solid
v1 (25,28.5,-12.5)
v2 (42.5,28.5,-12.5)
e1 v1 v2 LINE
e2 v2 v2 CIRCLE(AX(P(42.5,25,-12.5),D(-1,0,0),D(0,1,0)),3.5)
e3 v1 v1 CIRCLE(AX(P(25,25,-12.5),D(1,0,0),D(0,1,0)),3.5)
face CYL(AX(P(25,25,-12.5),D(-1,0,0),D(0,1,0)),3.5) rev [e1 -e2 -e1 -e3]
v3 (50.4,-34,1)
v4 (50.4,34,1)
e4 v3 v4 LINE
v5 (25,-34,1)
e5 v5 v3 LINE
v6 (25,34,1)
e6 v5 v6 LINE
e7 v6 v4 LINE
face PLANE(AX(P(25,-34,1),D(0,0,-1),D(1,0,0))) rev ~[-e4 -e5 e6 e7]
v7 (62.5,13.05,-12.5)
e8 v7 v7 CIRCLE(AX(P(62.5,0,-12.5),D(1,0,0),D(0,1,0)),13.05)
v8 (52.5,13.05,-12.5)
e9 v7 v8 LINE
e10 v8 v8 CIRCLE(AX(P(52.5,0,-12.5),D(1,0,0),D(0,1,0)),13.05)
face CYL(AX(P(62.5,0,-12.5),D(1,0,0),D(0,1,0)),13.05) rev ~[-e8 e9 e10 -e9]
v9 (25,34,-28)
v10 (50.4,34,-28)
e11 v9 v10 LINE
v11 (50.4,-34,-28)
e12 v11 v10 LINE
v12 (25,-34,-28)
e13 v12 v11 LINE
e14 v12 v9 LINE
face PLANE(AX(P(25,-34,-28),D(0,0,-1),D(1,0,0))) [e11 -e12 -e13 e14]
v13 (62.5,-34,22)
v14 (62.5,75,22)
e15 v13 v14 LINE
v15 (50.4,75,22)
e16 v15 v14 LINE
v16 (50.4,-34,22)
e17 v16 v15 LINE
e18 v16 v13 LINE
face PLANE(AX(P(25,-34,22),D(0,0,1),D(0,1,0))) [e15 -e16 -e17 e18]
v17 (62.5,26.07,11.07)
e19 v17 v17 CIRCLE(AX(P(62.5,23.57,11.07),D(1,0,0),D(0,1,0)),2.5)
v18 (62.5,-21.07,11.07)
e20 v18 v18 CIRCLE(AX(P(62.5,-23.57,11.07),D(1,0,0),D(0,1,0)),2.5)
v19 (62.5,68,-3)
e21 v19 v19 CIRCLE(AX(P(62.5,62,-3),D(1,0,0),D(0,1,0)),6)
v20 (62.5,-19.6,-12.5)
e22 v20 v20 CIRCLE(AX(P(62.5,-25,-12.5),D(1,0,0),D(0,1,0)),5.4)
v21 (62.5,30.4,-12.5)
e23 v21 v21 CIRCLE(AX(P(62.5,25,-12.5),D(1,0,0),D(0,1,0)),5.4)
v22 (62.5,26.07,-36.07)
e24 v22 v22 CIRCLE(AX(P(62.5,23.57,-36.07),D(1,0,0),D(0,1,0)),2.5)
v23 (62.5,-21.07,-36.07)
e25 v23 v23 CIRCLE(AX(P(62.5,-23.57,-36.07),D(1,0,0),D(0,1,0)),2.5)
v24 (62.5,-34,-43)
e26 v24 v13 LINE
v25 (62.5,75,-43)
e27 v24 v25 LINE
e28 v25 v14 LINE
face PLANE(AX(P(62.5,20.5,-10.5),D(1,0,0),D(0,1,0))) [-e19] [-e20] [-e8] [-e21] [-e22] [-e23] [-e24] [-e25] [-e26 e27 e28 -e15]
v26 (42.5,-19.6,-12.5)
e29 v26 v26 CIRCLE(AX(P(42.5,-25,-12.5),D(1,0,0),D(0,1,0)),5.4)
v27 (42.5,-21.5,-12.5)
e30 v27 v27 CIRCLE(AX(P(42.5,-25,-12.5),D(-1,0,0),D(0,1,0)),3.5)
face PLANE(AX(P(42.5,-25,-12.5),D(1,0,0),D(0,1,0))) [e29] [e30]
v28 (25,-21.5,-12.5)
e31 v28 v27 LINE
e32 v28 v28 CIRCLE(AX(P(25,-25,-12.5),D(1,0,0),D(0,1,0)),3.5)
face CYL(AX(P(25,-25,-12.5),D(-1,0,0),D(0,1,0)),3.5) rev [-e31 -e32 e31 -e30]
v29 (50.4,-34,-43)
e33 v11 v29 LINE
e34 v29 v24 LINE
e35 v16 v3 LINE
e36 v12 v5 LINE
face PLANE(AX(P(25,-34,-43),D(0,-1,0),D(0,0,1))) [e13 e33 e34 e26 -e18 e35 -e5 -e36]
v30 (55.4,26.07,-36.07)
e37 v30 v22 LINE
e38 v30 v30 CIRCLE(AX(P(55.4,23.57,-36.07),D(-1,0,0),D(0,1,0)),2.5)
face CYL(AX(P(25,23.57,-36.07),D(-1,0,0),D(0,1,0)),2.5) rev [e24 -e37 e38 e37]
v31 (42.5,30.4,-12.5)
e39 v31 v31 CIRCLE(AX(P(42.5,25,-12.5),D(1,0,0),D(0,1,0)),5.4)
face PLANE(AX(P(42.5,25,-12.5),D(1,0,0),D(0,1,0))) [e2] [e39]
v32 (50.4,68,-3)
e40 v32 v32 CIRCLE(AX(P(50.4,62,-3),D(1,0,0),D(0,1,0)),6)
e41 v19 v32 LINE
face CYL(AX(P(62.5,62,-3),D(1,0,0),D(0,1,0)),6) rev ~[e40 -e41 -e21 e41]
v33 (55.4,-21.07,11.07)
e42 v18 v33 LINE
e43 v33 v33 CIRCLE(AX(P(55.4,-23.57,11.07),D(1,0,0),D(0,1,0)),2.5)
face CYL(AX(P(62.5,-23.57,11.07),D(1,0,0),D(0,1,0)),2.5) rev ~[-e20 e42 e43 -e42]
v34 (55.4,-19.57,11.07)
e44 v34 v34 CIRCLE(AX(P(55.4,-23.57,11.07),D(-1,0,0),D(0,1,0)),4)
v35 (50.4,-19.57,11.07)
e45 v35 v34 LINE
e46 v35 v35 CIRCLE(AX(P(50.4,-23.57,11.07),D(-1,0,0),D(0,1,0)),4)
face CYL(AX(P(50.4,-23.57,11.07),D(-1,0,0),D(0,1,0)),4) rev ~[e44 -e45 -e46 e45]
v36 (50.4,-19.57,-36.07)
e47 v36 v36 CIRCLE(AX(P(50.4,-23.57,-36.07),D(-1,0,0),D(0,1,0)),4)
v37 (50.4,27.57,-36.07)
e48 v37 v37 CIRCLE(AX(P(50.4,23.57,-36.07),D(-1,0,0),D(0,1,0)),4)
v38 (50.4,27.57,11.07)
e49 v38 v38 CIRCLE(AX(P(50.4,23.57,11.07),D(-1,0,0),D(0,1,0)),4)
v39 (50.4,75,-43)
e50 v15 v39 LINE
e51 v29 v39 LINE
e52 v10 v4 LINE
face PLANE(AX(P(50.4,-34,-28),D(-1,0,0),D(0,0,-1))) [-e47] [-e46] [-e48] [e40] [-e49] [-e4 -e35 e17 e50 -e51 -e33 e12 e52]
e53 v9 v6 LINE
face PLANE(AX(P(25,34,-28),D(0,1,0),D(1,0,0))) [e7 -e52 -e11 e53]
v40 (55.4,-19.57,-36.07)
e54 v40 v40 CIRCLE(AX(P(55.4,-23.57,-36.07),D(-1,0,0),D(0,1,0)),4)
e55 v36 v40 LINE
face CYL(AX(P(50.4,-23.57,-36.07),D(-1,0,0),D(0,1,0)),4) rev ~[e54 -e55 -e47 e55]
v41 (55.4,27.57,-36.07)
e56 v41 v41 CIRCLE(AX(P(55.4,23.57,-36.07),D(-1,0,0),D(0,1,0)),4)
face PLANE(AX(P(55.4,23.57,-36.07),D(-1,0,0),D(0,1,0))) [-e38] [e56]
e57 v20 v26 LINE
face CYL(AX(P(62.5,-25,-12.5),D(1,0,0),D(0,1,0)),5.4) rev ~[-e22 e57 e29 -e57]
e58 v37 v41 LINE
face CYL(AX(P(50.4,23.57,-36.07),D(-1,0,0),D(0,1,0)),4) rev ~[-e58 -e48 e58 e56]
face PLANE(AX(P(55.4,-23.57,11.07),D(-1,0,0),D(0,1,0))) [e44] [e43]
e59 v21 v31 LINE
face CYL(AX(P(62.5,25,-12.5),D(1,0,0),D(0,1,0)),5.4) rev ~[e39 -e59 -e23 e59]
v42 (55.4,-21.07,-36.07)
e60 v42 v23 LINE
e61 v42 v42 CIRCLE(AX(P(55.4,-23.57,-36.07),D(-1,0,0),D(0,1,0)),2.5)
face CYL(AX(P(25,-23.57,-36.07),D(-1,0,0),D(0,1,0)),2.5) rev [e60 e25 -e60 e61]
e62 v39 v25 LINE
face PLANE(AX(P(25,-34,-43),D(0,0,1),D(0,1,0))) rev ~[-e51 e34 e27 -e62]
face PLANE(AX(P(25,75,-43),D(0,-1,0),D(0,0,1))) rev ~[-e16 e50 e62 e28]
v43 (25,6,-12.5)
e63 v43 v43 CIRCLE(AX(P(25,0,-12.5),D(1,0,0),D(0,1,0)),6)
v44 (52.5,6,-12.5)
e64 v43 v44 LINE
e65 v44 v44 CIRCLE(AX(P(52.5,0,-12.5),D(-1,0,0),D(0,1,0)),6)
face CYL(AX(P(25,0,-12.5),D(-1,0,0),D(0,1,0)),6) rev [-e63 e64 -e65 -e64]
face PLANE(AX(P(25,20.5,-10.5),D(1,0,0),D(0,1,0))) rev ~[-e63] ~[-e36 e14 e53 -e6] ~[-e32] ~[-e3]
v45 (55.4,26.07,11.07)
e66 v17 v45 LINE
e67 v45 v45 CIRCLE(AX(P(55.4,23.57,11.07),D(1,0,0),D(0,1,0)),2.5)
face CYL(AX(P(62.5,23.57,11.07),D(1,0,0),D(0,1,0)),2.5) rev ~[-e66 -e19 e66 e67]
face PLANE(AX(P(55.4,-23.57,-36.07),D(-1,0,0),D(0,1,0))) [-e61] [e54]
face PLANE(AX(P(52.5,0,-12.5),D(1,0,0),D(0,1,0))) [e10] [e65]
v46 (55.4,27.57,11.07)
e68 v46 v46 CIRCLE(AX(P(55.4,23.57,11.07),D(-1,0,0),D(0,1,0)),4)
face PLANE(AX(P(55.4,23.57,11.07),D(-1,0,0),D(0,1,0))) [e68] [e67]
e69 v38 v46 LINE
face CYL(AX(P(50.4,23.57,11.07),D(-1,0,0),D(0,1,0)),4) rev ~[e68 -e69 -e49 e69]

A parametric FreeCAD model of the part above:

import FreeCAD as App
import Part
import Sketcher


def add_polygon(sketch, points):
    """Adds a closed chain of lines whose ends are joined by coincident constraints."""
    first, n = sketch.GeometryCount, len(points)
    for a, b in zip(points, points[1:] + points[:1]):
        sketch.addGeometry(Part.LineSegment(App.Vector(*a, 0), App.Vector(*b, 0)), False)
    for i in range(n):
        sketch.addConstraint(Sketcher.Constraint("Coincident", first + i, 2, first + (i + 1) % n, 1))

doc = App.newDocument("Part")
body = doc.addObject("PartDesign::Body", "Body")

# Sketch on YZ plane
sketch1 = body.newObject("Sketcher::SketchObject", "Sketch")
sketch1.AttachmentSupport = (doc.getObject("YZ_Plane"), [""])
sketch1.MapMode = "FlatFace"
sketch1.AttachmentOffset = App.Placement(App.Vector(0, 0, 25), App.Rotation())
add_polygon(sketch1, [(-34, 22), (-34, -43), (75, -43), (75, 22)])  # lines 0-3
sketch1.addGeometry(Part.Circle(App.Vector(-23.6, -36.1, 0), App.Vector(0, 0, 1), 2.5), False)  # 4
sketch1.addGeometry(Part.Circle(App.Vector(23.6, -36.1, 0), App.Vector(0, 0, 1), 2.5), False)  # 5
sketch1.addGeometry(Part.Circle(App.Vector(-25, -12.5, 0), App.Vector(0, 0, 1), 3.5), False)  # 6
sketch1.addGeometry(Part.Circle(App.Vector(0, -12.5, 0), App.Vector(0, 0, 1), 6), False)  # 7
sketch1.addGeometry(Part.Circle(App.Vector(25, -12.5, 0), App.Vector(0, 0, 1), 3.5), False)  # 8
sketch1.addConstraint([
    Sketcher.Constraint("Vertical", 0),
    Sketcher.Constraint("Horizontal", 1),
    Sketcher.Constraint("Vertical", 2),
    Sketcher.Constraint("Horizontal", 3),
    Sketcher.Constraint("Equal", 4, 5),
    Sketcher.Constraint("Equal", 6, 8),
    Sketcher.Constraint("Symmetric", 4, 3, 5, 3, -2),
    Sketcher.Constraint("Symmetric", 6, 3, 8, 3, -2),
    Sketcher.Constraint("PointOnObject", 7, 3, -2),
    Sketcher.Constraint("Horizontal", 6, 3, 7, 3),
    Sketcher.Constraint("Diameter", 4, 5.0),
    Sketcher.Constraint("Diameter", 6, 7.0),
    Sketcher.Constraint("Diameter", 7, 12.0),
    Sketcher.Constraint("DistanceX", 1, 1, 1, 2, 109.0),
    Sketcher.Constraint("DistanceY", 0, 2, 0, 1, 65.0),
    Sketcher.Constraint("DistanceX", 6, 3, -1, 1, 25.0),
    Sketcher.Constraint("DistanceX", 0, 2, -1, 1, 34.0),
    Sketcher.Constraint("DistanceY", 0, 2, -1, 1, 43.0),
    Sketcher.Constraint("DistanceY", 6, 3, -1, 1, 12.5),
    Sketcher.Constraint("DistanceX", 4, 3, -1, 1, 23.57),
    Sketcher.Constraint("DistanceY", 4, 3, -1, 1, 36.07),
])
pad1 = body.newObject("PartDesign::Pad", "Pad")
pad1.Profile = sketch1
pad1.Length = 37.5

# Sketch on XZ plane
sketch2 = body.newObject("Sketcher::SketchObject", "Sketch001")
sketch2.AttachmentSupport = (doc.getObject("XZ_Plane"), [""])
sketch2.MapMode = "FlatFace"
sketch2.AttachmentOffset = App.Placement(App.Vector(0, 0, 34), App.Rotation())
add_polygon(sketch2, [(50, 22), (25, 22), (25, 1), (50, 1)])  # lines 0-3
add_polygon(sketch2, [(50, -28), (25, -28), (25, -43), (50, -43)])  # lines 4-7
sketch2.addConstraint([
    Sketcher.Constraint("Horizontal", 0),
    Sketcher.Constraint("Vertical", 1),
    Sketcher.Constraint("Horizontal", 2),
    Sketcher.Constraint("Vertical", 3),
    Sketcher.Constraint("Horizontal", 4),
    Sketcher.Constraint("Vertical", 5),
    Sketcher.Constraint("Horizontal", 6),
    Sketcher.Constraint("Vertical", 7),
    Sketcher.Constraint("Vertical", 1, 2, 4, 2),
    Sketcher.Constraint("Vertical", 3, 2, 6, 2),
    Sketcher.Constraint("DistanceY", 1, 2, 1, 1, 21.0),
    Sketcher.Constraint("DistanceY", 5, 2, 5, 1, 15.0),
    Sketcher.Constraint("DistanceX", 0, 2, 0, 1, 25.4),
    Sketcher.Constraint("DistanceX", -1, 1, 0, 2, 25.0),
    Sketcher.Constraint("DistanceY", -1, 1, 0, 2, 22.0),
    Sketcher.Constraint("DistanceY", 4, 2, -1, 1, 28.0),
])
pocket1 = body.newObject("PartDesign::Pocket", "Pocket")
pocket1.Profile = sketch2
pocket1.Length = 109

# Sketch on XY plane
sketch3 = body.newObject("Sketcher::SketchObject", "Sketch002")
sketch3.AttachmentSupport = (doc.getObject("XY_Plane"), [""])
sketch3.MapMode = "FlatFace"
sketch3.AttachmentOffset = App.Placement(App.Vector(0, 0, -28), App.Rotation())
add_polygon(sketch3, [(50, 34), (25, 34), (25, 75), (50, 75)])  # lines 0-3
sketch3.addConstraint([
    Sketcher.Constraint("Horizontal", 0),
    Sketcher.Constraint("Vertical", 1),
    Sketcher.Constraint("Horizontal", 2),
    Sketcher.Constraint("Vertical", 3),
    Sketcher.Constraint("DistanceY", 1, 1, 1, 2, 41.0),
    Sketcher.Constraint("DistanceX", 0, 2, 0, 1, 25.4),
    Sketcher.Constraint("DistanceX", -1, 1, 0, 2, 25.0),
    Sketcher.Constraint("DistanceY", -1, 1, 0, 2, 34.0),
])
pocket2 = body.newObject("PartDesign::Pocket", "Pocket001")
pocket2.Profile = sketch3
pocket2.Length = 29
pocket2.Reversed = True

# Sketch on YZ plane
sketch4 = body.newObject("Sketcher::SketchObject", "Sketch003")
sketch4.AttachmentSupport = (doc.getObject("YZ_Plane"), [""])
sketch4.MapMode = "FlatFace"
sketch4.AttachmentOffset = App.Placement(App.Vector(0, 0, 62.5), App.Rotation())
sketch4.addGeometry([
    Part.Circle(App.Vector(-23.6, 11.1, 0), App.Vector(0, 0, 1), 2.5),
    Part.Circle(App.Vector(23.6, 11.1, 0), App.Vector(0, 0, 1), 2.5),
    Part.Circle(App.Vector(62, -3, 0), App.Vector(0, 0, 1), 6),
], False)
sketch4.addConstraint([
    Sketcher.Constraint("Equal", 0, 1),
    Sketcher.Constraint("Symmetric", 0, 3, 1, 3, -2),
    Sketcher.Constraint("Diameter", 0, 5.0),
    Sketcher.Constraint("Diameter", 2, 12.0),
    Sketcher.Constraint("DistanceX", -1, 1, 2, 3, 62.0),
    Sketcher.Constraint("DistanceY", 2, 3, -1, 1, 3.0),
    Sketcher.Constraint("DistanceX", 0, 3, -1, 1, 23.57),
    Sketcher.Constraint("DistanceY", -1, 1, 0, 3, 11.07),
])
pocket3 = body.newObject("PartDesign::Pocket", "Pocket002")
pocket3.Profile = sketch4
pocket3.Length = 13

# Sketch on YZ plane
sketch5 = body.newObject("Sketcher::SketchObject", "Sketch004")
sketch5.AttachmentSupport = (doc.getObject("YZ_Plane"), [""])
sketch5.MapMode = "FlatFace"
sketch5.AttachmentOffset = App.Placement(App.Vector(0, 0, 50.4), App.Rotation())
sketch5.addGeometry([
    Part.Circle(App.Vector(-23.6, 11.1, 0), App.Vector(0, 0, 1), 4),
    Part.Circle(App.Vector(23.6, 11.1, 0), App.Vector(0, 0, 1), 4),
    Part.Circle(App.Vector(-23.6, -36.1, 0), App.Vector(0, 0, 1), 4),
    Part.Circle(App.Vector(23.6, -36.1, 0), App.Vector(0, 0, 1), 4),
], False)
sketch5.addConstraint([
    Sketcher.Constraint("Equal", 0, 1),
    Sketcher.Constraint("Equal", 1, 2),
    Sketcher.Constraint("Equal", 2, 3),
    Sketcher.Constraint("Symmetric", 0, 3, 1, 3, -2),
    Sketcher.Constraint("Symmetric", 2, 3, 3, 3, -2),
    Sketcher.Constraint("Vertical", 0, 3, 2, 3),
    Sketcher.Constraint("Diameter", 0, 8.0),
    Sketcher.Constraint("DistanceX", 0, 3, -1, 1, 23.57),
    Sketcher.Constraint("DistanceY", -1, 1, 0, 3, 11.07),
    Sketcher.Constraint("DistanceY", 2, 3, -1, 1, 36.07),
])
pocket4 = body.newObject("PartDesign::Pocket", "Pocket003")
pocket4.Profile = sketch5
pocket4.Length = 5
pocket4.Reversed = True

# Sketch on YZ plane
sketch6 = body.newObject("Sketcher::SketchObject", "Sketch005")
sketch6.AttachmentSupport = (doc.getObject("YZ_Plane"), [""])
sketch6.MapMode = "FlatFace"
sketch6.AttachmentOffset = App.Placement(App.Vector(0, 0, 62.5), App.Rotation())
sketch6.addGeometry([
    Part.Circle(App.Vector(-25, -12, 0), App.Vector(0, 0, 1), 5),
    Part.Circle(App.Vector(25, -12, 0), App.Vector(0, 0, 1), 5),
], False)
sketch6.addConstraint([
    Sketcher.Constraint("Equal", 0, 1),
    Sketcher.Constraint("Symmetric", 0, 3, 1, 3, -2),
    Sketcher.Constraint("Diameter", 0, 10.8),
    Sketcher.Constraint("DistanceX", 0, 3, -1, 1, 25.0),
    Sketcher.Constraint("DistanceY", 0, 3, -1, 1, 12.5),
])
pocket5 = body.newObject("PartDesign::Pocket", "Pocket004")
pocket5.Profile = sketch6
pocket5.Length = 20

# Sketch on YZ plane
sketch7 = body.newObject("Sketcher::SketchObject", "Sketch006")
sketch7.AttachmentSupport = (doc.getObject("YZ_Plane"), [""])
sketch7.MapMode = "FlatFace"
sketch7.AttachmentOffset = App.Placement(App.Vector(0, 0, 62.5), App.Rotation())
sketch7.addGeometry(Part.Circle(App.Vector(0, -12, 0), App.Vector(0, 0, 1), 13), False)
sketch7.addConstraint([
    Sketcher.Constraint("PointOnObject", 0, 3, -2),
    Sketcher.Constraint("Diameter", 0, 26.1),
    Sketcher.Constraint("DistanceY", 0, 3, -1, 1, 12.5),
])
pocket6 = body.newObject("PartDesign::Pocket", "Pocket005")
pocket6.Profile = sketch7
pocket6.Length = 10

doc.recompute()
